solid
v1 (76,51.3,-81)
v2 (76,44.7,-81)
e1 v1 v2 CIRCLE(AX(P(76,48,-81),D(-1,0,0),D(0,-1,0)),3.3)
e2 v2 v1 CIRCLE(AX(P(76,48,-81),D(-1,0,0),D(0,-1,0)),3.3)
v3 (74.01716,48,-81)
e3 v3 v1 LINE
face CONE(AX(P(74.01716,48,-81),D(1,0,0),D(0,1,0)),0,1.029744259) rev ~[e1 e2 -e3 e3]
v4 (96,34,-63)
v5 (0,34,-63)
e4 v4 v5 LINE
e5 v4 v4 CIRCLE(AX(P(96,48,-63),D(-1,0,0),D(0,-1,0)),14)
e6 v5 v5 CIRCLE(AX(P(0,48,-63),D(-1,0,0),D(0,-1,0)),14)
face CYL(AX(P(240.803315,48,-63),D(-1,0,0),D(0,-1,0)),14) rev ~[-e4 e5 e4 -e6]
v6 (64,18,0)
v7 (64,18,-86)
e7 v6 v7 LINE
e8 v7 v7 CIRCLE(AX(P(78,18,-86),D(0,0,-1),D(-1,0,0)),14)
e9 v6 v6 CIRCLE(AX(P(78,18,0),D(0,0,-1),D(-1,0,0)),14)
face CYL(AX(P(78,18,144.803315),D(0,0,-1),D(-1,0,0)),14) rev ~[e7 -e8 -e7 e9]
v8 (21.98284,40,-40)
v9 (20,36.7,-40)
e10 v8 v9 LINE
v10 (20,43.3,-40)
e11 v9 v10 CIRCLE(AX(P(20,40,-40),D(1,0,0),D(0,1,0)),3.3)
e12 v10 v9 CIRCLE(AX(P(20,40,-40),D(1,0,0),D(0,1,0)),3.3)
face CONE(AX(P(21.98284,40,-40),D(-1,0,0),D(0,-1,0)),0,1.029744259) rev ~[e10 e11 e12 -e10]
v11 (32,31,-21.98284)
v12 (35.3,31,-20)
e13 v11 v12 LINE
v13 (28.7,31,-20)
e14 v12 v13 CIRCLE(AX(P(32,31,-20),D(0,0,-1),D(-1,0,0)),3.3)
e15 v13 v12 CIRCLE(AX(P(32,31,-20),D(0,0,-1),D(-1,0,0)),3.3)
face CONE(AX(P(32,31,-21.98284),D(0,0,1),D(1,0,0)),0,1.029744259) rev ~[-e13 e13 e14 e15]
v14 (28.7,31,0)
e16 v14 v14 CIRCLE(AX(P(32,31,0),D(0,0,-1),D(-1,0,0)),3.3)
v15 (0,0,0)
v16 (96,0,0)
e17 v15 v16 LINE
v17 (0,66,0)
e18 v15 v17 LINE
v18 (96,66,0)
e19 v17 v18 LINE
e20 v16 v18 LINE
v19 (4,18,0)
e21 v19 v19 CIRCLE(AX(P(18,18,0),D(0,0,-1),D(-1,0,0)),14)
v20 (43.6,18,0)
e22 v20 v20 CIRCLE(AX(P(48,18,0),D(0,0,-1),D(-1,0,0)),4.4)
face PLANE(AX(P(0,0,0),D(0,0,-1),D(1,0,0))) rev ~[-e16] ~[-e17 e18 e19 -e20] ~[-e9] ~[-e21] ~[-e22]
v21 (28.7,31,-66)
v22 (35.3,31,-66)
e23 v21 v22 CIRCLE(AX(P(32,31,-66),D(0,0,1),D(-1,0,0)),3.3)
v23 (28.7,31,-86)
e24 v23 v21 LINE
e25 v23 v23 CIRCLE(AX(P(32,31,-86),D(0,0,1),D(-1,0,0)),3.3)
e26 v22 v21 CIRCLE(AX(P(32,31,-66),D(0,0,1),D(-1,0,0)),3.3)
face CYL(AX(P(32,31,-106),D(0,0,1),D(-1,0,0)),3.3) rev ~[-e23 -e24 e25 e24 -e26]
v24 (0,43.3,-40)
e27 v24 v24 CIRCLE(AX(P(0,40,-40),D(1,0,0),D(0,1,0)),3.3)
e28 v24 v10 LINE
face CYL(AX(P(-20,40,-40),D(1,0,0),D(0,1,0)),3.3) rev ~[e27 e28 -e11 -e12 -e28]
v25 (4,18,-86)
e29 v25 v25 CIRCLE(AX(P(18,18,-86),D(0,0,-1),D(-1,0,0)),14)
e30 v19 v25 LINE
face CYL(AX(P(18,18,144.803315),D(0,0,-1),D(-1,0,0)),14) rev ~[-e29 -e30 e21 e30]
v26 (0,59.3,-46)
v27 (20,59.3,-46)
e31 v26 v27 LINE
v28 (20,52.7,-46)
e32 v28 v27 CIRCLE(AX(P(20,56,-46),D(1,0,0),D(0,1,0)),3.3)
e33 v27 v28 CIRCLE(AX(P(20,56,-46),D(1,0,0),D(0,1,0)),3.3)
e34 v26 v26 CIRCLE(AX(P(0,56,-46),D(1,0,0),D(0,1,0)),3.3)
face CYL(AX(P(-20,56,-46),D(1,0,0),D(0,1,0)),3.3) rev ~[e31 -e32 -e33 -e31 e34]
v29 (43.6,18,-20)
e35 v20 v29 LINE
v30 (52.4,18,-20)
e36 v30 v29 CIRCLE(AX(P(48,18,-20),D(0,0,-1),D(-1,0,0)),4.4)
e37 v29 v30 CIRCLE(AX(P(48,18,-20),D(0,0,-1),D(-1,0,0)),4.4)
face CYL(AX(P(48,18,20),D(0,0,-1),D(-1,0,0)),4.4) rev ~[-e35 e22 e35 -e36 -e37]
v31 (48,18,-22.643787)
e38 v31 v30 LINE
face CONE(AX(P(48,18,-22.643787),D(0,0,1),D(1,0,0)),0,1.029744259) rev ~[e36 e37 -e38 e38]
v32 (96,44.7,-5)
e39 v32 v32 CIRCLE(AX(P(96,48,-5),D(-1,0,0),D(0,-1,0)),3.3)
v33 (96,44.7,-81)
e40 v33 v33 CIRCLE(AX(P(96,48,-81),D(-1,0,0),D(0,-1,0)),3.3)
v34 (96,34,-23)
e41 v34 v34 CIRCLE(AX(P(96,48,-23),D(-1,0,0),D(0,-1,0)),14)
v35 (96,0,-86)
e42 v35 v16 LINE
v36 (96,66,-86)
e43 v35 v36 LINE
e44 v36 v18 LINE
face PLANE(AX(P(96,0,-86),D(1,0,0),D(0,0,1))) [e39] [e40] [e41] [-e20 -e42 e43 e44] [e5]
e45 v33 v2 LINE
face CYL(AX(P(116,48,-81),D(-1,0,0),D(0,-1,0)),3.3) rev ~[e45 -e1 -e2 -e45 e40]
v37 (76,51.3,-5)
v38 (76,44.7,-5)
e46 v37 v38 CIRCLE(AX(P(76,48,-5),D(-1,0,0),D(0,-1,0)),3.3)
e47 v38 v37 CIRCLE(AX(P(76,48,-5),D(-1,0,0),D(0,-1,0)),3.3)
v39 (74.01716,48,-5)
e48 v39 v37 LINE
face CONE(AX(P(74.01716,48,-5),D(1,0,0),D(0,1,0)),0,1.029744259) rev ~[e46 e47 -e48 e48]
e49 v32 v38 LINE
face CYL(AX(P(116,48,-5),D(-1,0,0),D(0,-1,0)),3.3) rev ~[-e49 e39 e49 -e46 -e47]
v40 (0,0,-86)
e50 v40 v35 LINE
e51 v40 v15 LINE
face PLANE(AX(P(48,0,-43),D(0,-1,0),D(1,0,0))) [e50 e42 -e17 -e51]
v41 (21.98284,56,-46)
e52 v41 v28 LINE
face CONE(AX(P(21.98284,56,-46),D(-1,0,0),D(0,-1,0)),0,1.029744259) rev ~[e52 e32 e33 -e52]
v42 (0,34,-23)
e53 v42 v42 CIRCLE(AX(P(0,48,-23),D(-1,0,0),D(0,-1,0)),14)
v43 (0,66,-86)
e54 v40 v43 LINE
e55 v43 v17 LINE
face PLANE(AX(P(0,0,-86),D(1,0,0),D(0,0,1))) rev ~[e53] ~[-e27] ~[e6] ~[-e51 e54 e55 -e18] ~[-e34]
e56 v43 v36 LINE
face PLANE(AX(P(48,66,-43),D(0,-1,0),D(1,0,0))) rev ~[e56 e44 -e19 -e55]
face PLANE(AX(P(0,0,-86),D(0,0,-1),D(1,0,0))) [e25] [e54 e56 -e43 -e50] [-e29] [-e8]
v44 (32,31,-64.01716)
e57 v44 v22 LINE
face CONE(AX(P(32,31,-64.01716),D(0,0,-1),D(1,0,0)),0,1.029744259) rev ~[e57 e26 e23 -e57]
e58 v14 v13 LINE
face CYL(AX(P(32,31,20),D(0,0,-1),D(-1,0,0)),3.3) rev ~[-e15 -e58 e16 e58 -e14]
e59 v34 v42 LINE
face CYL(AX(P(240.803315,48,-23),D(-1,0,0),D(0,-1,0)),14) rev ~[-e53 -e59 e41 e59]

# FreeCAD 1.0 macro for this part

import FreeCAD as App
import Part
import Sketcher
Q = App.Units.Quantity

doc = App.newDocument("Part")
body = doc.addObject("PartDesign::Body", "Body")

sketch1 = body.newObject("Sketcher::SketchObject", "Sketch")
sketch1.AttachmentSupport = (doc.getObject("XZ_Plane"), [""])
sketch1.MapMode = "FlatFace"
sketch1.addGeometry([
    Part.LineSegment(App.Vector(0, 0, 0), App.Vector(0, -86, 0)),
    Part.LineSegment(App.Vector(0, -86, 0), App.Vector(96, -86, 0)),
    Part.LineSegment(App.Vector(96, -86, 0), App.Vector(96, 0, 0)),
    Part.LineSegment(App.Vector(96, 0, 0), App.Vector(0, 0, 0)),
], False)
sketch1.addConstraint([
    Sketcher.Constraint("Coincident", 0, 2, 1, 1),
    Sketcher.Constraint("Coincident", 1, 2, 2, 1),
    Sketcher.Constraint("Coincident", 2, 2, 3, 1),
    Sketcher.Constraint("Coincident", 3, 2, 0, 1),
    Sketcher.Constraint("Vertical", 0),
    Sketcher.Constraint("Horizontal", 1),
    Sketcher.Constraint("Vertical", 2),
    Sketcher.Constraint("Horizontal", 3),
    Sketcher.Constraint("Coincident", 3, 2, -1, 1),
    Sketcher.Constraint("DistanceX", 1, 1, 1, 2, Q("96 mm")),
    Sketcher.Constraint("DistanceY", 0, 2, 0, 1, Q("86 mm")),
])
pad1 = body.newObject("PartDesign::Pad", "Pad")
pad1.Profile = sketch1
pad1.Length = 66
pad1.Reversed = True

sketch2 = body.newObject("Sketcher::SketchObject", "Sketch001")
sketch2.AttachmentSupport = (doc.getObject("XY_Plane"), [""])
sketch2.MapMode = "FlatFace"
sketch2.addGeometry([
    Part.Circle(App.Vector(18, 18, 0), App.Vector(0, 0, 1), 14),
    Part.Circle(App.Vector(78, 18, 0), App.Vector(0, 0, 1), 14),
], False)
sketch2.addConstraint([
    Sketcher.Constraint("Equal", 0, 1),
    Sketcher.Constraint("Horizontal", 0, 3, 1, 3),
    Sketcher.Constraint("Diameter", 0, Q("28 mm")),
    Sketcher.Constraint("DistanceX", -1, 1, 0, 3, Q("18 mm")),
    Sketcher.Constraint("DistanceY", -1, 1, 0, 3, Q("18 mm")),
    Sketcher.Constraint("DistanceX", -1, 1, 1, 3, Q("78 mm")),
])
doc.recompute()
hole = body.newObject("PartDesign::Hole", "Hole")
hole.Profile = sketch2
hole.ThreadType = "None"
hole.Diameter = 28
hole.DepthType = "ThroughAll"

sketch3 = body.newObject("Sketcher::SketchObject", "Sketch002")
sketch3.AttachmentSupport = (doc.getObject("YZ_Plane"), [""])
sketch3.MapMode = "FlatFace"
sketch3.AttachmentOffset = App.Placement(App.Vector(0, 0, 96), App.Rotation())
sketch3.addGeometry([
    Part.Circle(App.Vector(48, -23, 0), App.Vector(0, 0, 1), 14),
    Part.Circle(App.Vector(48, -63, 0), App.Vector(0, 0, 1), 14),
], False)
sketch3.addConstraint([
    Sketcher.Constraint("Equal", 0, 1),
    Sketcher.Constraint("Vertical", 0, 3, 1, 3),
    Sketcher.Constraint("Diameter", 0, Q("28 mm")),
    Sketcher.Constraint("DistanceX", -1, 1, 0, 3, Q("48 mm")),
    Sketcher.Constraint("DistanceY", 0, 3, -1, 1, Q("23 mm")),
    Sketcher.Constraint("DistanceY", 1, 3, -1, 1, Q("63 mm")),
])
doc.recompute()
hole2 = body.newObject("PartDesign::Hole", "Hole001")
hole2.Profile = sketch3
hole2.ThreadType = "None"
hole2.Diameter = 28
hole2.DepthType = "ThroughAll"

sketch4 = body.newObject("Sketcher::SketchObject", "Sketch003")
sketch4.AttachmentSupport = (doc.getObject("XY_Plane"), [""])
sketch4.MapMode = "FlatFace"
sketch4.addGeometry(Part.Circle(App.Vector(48, 18, 0), App.Vector(0, 0, 1), 4.4), False)
sketch4.addConstraint([
    Sketcher.Constraint("Diameter", 0, Q("8.8 mm")),
    Sketcher.Constraint("DistanceX", -1, 1, 0, 3, Q("48 mm")),
    Sketcher.Constraint("DistanceY", -1, 1, 0, 3, Q("18 mm")),
])
doc.recompute()
hole3 = body.newObject("PartDesign::Hole", "Hole002")
hole3.Profile = sketch4
hole3.ThreadType = "None"
hole3.Diameter = 8.8
hole3.DepthType = "Dimension"
hole3.Depth = 20
hole3.DrillPoint = "Angled"
hole3.DrillPointAngle = 118

sketch5 = body.newObject("Sketcher::SketchObject", "Sketch004")
sketch5.AttachmentSupport = (doc.getObject("XY_Plane"), [""])
sketch5.MapMode = "FlatFace"
sketch5.addGeometry(Part.Circle(App.Vector(32, 31, 0), App.Vector(0, 0, 1), 3.3), False)
sketch5.addConstraint([
    Sketcher.Constraint("Diameter", 0, Q("6.6 mm")),
    Sketcher.Constraint("DistanceX", -1, 1, 0, 3, Q("32 mm")),
    Sketcher.Constraint("DistanceY", -1, 1, 0, 3, Q("31 mm")),
])
doc.recompute()
hole4 = body.newObject("PartDesign::Hole", "Hole003")
hole4.Profile = sketch5
hole4.ThreadType = "None"
hole4.Diameter = 6.6
hole4.DepthType = "Dimension"
hole4.Depth = 20
hole4.DrillPoint = "Angled"
hole4.DrillPointAngle = 118

sketch6 = body.newObject("Sketcher::SketchObject", "Sketch005")
sketch6.AttachmentSupport = (doc.getObject("YZ_Plane"), [""])
sketch6.MapMode = "FlatFace"
sketch6.AttachmentOffset = App.Placement(App.Vector(0, 0, 96), App.Rotation())
sketch6.addGeometry([
    Part.Circle(App.Vector(48, -81, 0), App.Vector(0, 0, 1), 3.3),
    Part.Circle(App.Vector(48, -5, 0), App.Vector(0, 0, 1), 3.3),
], False)
sketch6.addConstraint([
    Sketcher.Constraint("Equal", 0, 1),
    Sketcher.Constraint("Vertical", 0, 3, 1, 3),
    Sketcher.Constraint("Diameter", 0, Q("6.6 mm")),
    Sketcher.Constraint("DistanceX", -1, 1, 0, 3, Q("48 mm")),
    Sketcher.Constraint("DistanceY", 0, 3, -1, 1, Q("81 mm")),
    Sketcher.Constraint("DistanceY", 1, 3, -1, 1, Q("5 mm")),
])
doc.recompute()
hole5 = body.newObject("PartDesign::Hole", "Hole004")
hole5.Profile = sketch6
hole5.ThreadType = "None"
hole5.Diameter = 6.6
hole5.DepthType = "Dimension"
hole5.Depth = 20
hole5.DrillPoint = "Angled"
hole5.DrillPointAngle = 118

sketch7 = body.newObject("Sketcher::SketchObject", "Sketch006")
sketch7.AttachmentSupport = (doc.getObject("XY_Plane"), [""])
sketch7.MapMode = "FlatFace"
sketch7.AttachmentOffset = App.Placement(App.Vector(0, 0, -86), App.Rotation())
sketch7.addGeometry(Part.Circle(App.Vector(32, 31, 0), App.Vector(0, 0, 1), 3.3), False)
sketch7.addConstraint([
    Sketcher.Constraint("Diameter", 0, Q("6.6 mm")),
    Sketcher.Constraint("DistanceX", -1, 1, 0, 3, Q("32 mm")),
    Sketcher.Constraint("DistanceY", -1, 1, 0, 3, Q("31 mm")),
])
doc.recompute()
hole6 = body.newObject("PartDesign::Hole", "Hole005")
hole6.Profile = sketch7
hole6.ThreadType = "None"
hole6.Diameter = 6.6
hole6.DepthType = "Dimension"
hole6.Depth = 20
hole6.DrillPoint = "Angled"
hole6.DrillPointAngle = 118
hole6.Reversed = True

sketch8 = body.newObject("Sketcher::SketchObject", "Sketch007")
sketch8.AttachmentSupport = (doc.getObject("YZ_Plane"), [""])
sketch8.MapMode = "FlatFace"
sketch8.addGeometry([
    Part.Circle(App.Vector(56, -46, 0), App.Vector(0, 0, 1), 3.3),
    Part.Circle(App.Vector(40, -40, 0), App.Vector(0, 0, 1), 3.3),
], False)
sketch8.addConstraint([
    Sketcher.Constraint("Equal", 0, 1),
    Sketcher.Constraint("Diameter", 0, Q("6.6 mm")),
    Sketcher.Constraint("DistanceX", -1, 1, 0, 3, Q("56 mm")),
    Sketcher.Constraint("DistanceY", 0, 3, -1, 1, Q("46 mm")),
    Sketcher.Constraint("DistanceX", -1, 1, 1, 3, Q("40 mm")),
    Sketcher.Constraint("DistanceY", 1, 3, -1, 1, Q("40 mm")),
])
doc.recompute()
hole7 = body.newObject("PartDesign::Hole", "Hole006")
hole7.Profile = sketch8
hole7.ThreadType = "None"
hole7.Diameter = 6.6
hole7.DepthType = "Dimension"
hole7.Depth = 20
hole7.DrillPoint = "Angled"
hole7.DrillPointAngle = 118
hole7.Reversed = True

doc.recompute()
